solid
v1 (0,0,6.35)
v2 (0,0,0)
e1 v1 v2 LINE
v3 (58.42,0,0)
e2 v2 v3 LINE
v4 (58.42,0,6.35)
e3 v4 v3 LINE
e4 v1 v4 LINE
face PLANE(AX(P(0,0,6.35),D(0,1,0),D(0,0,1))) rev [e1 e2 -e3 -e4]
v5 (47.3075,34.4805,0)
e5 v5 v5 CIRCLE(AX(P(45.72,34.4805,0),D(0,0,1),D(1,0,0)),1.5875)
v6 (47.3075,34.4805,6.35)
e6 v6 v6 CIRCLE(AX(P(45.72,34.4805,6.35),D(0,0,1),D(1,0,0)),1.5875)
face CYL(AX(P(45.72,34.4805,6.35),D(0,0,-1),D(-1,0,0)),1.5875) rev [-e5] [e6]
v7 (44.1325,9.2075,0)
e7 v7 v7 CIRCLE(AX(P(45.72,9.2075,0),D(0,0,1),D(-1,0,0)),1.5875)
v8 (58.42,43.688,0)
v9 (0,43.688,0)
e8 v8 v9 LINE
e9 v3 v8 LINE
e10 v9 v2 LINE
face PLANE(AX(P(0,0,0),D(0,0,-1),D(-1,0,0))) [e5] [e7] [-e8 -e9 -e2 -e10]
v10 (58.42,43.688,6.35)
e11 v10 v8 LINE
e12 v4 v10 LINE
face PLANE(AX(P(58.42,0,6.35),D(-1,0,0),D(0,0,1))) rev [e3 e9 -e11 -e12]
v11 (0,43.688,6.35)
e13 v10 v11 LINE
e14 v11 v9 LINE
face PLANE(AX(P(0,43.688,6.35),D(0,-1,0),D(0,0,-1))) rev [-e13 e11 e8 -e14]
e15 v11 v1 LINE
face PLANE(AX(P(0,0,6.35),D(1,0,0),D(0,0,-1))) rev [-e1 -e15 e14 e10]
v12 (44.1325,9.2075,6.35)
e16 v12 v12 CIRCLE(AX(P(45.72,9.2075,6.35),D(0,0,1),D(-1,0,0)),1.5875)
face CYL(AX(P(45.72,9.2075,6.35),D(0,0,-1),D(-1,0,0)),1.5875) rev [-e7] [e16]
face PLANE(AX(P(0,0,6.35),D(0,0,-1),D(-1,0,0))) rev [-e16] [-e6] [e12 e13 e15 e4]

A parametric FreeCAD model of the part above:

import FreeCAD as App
import Part
import Sketcher
from FreeCAD import Vector
Q = App.Units.Quantity

doc = App.newDocument("Part")
params = doc.addObject("Spreadsheet::Sheet", "Params")
for row, (alias, value) in enumerate([
    ("sketch1_diameter", "0.125 in"),
    ("sketch1_width", "2.3 in"),
    ("sketch1_height", "1.72 in"),
    ("pad1_length", "0.25 in"),
], start=1):
    params.set(f"A{row}", alias)
    params.set(f"B{row}", "=" + value)
    params.setAlias(f"B{row}", alias)

body = doc.addObject("PartDesign::Body", "Body")

# Sketch on XY plane
sketch1 = body.newObject("Sketcher::SketchObject", "Sketch")
sketch1.AttachmentSupport = (doc.getObject("XY_Plane"), [""])
sketch1.MapMode = "FlatFace"
sketch1.addGeometry([
    Part.LineSegment(Vector(0, 43.7, 0), Vector(0, 0, 0)),  # 0
    Part.LineSegment(Vector(0, 0, 0), Vector(58.4, 0, 0)),  # 1
    Part.LineSegment(Vector(58.4, 0, 0), Vector(58.4, 43.7, 0)),  # 2
    Part.LineSegment(Vector(58.4, 43.7, 0), Vector(0, 43.7, 0)),  # 3
    Part.Circle(Vector(45.7, 9.2, 0), Vector(0, 0, 1), 1.6),  # 4
    Part.Circle(Vector(45.7, 34.5, 0), Vector(0, 0, 1), 1.6),  # 5
], False)
sketch1.addConstraint([
    Sketcher.Constraint("Coincident", 0, 2, 1, 1),
    Sketcher.Constraint("Coincident", 1, 2, 2, 1),
    Sketcher.Constraint("Coincident", 2, 2, 3, 1),
    Sketcher.Constraint("Coincident", 3, 2, 0, 1),
    Sketcher.Constraint("Vertical", 0),
    Sketcher.Constraint("Horizontal", 1),
    Sketcher.Constraint("Vertical", 2),
    Sketcher.Constraint("Horizontal", 3),
    Sketcher.Constraint("Coincident", 0, 2, -1, 1),
    Sketcher.Constraint("Equal", 4, 5),
    Sketcher.Constraint("Vertical", 4, 3, 5, 3),
    Sketcher.Constraint("Diameter", 4, Q("0.125 in")),
    Sketcher.Constraint("DistanceX", 1, 1, 1, 2, Q("2.3 in")),
    Sketcher.Constraint("DistanceY", 0, 2, 0, 1, Q("1.72 in")),
    Sketcher.Constraint("DistanceX", -1, 1, 4, 3, Q("1.8 in")),
    Sketcher.Constraint("DistanceY", 4, 3, 5, 3, Q("0.995 in")),
    Sketcher.Constraint("DistanceY", -1, 1, 4, 3, Q("0.3625 in")),
])
sketch1.setExpression("Constraints[11]", "Params.sketch1_diameter")
sketch1.setExpression("Constraints[12]", "Params.sketch1_width")
sketch1.setExpression("Constraints[13]", "Params.sketch1_height")
pad1 = body.newObject("PartDesign::Pad", "Pad")
pad1.Profile = sketch1
pad1.setExpression("Length", "Params.pad1_length")

doc.recompute()
